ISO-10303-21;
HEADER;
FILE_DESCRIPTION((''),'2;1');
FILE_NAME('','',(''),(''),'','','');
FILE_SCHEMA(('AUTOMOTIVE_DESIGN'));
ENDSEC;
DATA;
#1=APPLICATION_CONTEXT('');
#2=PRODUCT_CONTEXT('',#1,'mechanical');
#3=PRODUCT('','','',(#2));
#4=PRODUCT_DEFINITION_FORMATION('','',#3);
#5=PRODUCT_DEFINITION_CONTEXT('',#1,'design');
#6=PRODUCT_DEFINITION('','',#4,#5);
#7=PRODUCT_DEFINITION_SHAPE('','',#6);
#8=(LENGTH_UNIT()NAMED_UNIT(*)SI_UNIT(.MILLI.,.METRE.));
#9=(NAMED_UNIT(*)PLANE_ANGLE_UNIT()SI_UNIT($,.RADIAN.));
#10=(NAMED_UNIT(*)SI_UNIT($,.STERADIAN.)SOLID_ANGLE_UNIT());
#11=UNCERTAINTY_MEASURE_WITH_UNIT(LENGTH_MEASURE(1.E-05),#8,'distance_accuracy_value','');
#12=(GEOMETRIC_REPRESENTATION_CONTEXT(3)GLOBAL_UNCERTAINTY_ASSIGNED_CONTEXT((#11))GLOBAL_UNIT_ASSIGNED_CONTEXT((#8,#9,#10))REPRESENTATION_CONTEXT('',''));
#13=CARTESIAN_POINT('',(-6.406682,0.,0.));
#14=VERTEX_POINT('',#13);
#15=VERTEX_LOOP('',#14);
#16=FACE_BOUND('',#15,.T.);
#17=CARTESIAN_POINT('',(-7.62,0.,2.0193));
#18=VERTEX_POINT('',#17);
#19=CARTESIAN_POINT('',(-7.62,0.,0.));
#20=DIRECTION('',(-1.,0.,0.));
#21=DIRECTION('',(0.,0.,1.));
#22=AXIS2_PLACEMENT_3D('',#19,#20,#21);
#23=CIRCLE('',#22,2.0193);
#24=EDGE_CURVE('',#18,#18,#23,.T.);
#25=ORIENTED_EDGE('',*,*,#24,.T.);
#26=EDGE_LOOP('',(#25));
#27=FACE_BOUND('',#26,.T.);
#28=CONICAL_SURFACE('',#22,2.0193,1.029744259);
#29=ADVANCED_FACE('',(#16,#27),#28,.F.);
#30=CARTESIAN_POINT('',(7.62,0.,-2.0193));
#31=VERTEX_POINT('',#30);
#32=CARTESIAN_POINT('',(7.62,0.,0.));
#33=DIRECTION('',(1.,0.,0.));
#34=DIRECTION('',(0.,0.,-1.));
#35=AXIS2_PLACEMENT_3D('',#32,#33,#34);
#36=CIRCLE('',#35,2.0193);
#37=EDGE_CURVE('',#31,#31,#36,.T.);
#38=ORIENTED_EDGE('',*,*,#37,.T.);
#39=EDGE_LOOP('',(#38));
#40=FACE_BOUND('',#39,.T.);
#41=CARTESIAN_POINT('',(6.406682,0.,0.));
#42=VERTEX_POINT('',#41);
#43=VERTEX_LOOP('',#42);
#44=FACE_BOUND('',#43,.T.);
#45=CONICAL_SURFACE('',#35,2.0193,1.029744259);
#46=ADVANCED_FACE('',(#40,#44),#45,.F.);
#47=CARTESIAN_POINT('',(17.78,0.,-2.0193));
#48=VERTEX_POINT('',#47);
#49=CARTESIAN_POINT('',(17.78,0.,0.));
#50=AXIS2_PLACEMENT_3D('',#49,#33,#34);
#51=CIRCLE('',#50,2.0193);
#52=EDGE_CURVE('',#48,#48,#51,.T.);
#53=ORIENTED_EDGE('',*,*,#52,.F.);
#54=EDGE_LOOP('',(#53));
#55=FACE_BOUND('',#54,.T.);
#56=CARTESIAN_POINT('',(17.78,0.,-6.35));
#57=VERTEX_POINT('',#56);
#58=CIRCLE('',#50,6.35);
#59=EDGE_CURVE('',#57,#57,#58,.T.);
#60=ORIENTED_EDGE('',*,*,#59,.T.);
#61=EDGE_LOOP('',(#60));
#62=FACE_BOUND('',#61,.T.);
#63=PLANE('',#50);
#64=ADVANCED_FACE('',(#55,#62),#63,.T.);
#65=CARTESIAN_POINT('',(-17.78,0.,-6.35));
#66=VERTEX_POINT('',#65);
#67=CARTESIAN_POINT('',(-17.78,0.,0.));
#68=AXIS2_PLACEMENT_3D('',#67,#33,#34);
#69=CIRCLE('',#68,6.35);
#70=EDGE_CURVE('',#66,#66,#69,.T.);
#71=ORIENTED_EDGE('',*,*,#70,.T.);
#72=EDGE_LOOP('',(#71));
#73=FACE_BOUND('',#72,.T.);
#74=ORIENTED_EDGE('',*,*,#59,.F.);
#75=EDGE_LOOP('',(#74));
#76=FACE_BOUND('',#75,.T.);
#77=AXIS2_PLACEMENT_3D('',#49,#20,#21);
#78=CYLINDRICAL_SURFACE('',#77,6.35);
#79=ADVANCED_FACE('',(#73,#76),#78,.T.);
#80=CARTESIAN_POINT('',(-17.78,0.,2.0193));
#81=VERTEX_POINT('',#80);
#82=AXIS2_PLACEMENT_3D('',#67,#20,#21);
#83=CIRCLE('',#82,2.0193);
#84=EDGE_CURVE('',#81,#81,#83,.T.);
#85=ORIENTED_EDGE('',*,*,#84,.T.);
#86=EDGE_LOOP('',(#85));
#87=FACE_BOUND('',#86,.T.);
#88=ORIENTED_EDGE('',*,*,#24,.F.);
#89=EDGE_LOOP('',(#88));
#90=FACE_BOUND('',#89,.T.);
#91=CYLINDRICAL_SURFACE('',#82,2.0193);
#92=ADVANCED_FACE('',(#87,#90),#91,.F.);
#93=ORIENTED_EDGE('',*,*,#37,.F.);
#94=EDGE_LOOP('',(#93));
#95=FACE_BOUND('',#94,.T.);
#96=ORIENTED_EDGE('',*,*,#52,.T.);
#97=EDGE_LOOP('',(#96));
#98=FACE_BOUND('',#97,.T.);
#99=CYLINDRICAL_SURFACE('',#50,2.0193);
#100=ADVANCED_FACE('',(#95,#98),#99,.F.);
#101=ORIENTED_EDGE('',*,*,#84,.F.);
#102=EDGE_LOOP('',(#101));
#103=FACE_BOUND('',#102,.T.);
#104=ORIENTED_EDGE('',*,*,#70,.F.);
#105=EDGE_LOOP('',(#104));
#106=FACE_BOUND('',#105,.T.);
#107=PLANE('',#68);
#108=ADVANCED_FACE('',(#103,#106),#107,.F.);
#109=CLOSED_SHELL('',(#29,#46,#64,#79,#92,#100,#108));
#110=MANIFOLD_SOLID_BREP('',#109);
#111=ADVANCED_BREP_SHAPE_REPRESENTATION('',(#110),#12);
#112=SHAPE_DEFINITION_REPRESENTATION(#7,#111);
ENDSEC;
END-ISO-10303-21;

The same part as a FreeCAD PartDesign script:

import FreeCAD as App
import Part
import Sketcher
from FreeCAD import Vector
Q = App.Units.Quantity


def add_polygon(sketch, points):
    """Adds a closed chain of lines whose ends are joined by coincident constraints."""
    first, n = sketch.GeometryCount, len(points)
    for a, b in zip(points, points[1:] + points[:1]):
        sketch.addGeometry(Part.LineSegment(App.Vector(*a, 0), App.Vector(*b, 0)), False)
    for i in range(n):
        sketch.addConstraint(Sketcher.Constraint("Coincident", first + i, 2, first + (i + 1) % n, 1))

doc = App.newDocument("Part")
body = doc.addObject("PartDesign::Body", "Body")

# Sketch on YZ plane
sketch1 = body.newObject("Sketcher::SketchObject", "Sketch")
sketch1.AttachmentSupport = (doc.getObject("YZ_Plane"), [""])
sketch1.MapMode = "FlatFace"
sketch1.addGeometry(Part.Circle(Vector(0, 0, 0), Vector(0, 0, 1), 6.35), False)
sketch1.addConstraint([
    Sketcher.Constraint("Coincident", 0, 3, -1, 1),
    Sketcher.Constraint("Diameter", 0, Q("0.5 in")),
])
pad1 = body.newObject("PartDesign::Pad", "Pad")
pad1.Profile = sketch1
pad1.Length = Q("1.4 in")
pad1.Midplane = True

# Sketch on XZ plane
sketch2 = body.newObject("Sketcher::SketchObject", "Sketch001")
sketch2.AttachmentSupport = (doc.getObject("XZ_Plane"), [""])
sketch2.MapMode = "FlatFace"
add_polygon(sketch2, [(6.406682, 0), (17.78, 0), (17.78, -2.0193), (7.62, -2.0193)])  # lines 0-3
sketch2.addConstraint([
    Sketcher.Constraint("Horizontal", 0),
    Sketcher.Constraint("Vertical", 1),
    Sketcher.Constraint("Horizontal", 2),
    Sketcher.Constraint("PointOnObject", 0, 2, -1),
    Sketcher.Constraint("DistanceX", 2, 2, 2, 1, Q("0.4 in")),
    Sketcher.Constraint("Angle", 3, Q("121 deg")),
    Sketcher.Constraint("DistanceX", -1, 1, 0, 2, Q("0.7 in")),
    Sketcher.Constraint("DistanceY", 1, 2, 1, 1, Q("0.0795 in")),
])
groove = body.newObject("PartDesign::Groove", "Groove")
groove.Profile = sketch2
groove.ReferenceAxis = (sketch2, ["H_Axis"])
groove.Angle = 360
doc.recompute()

mirrored = body.newObject("PartDesign::Mirrored", "Mirrored")
mirrored.Originals = [groove]
mirrored.MirrorPlane = (doc.getObject("YZ_Plane"), [""])
body.Tip = mirrored

doc.recompute()
